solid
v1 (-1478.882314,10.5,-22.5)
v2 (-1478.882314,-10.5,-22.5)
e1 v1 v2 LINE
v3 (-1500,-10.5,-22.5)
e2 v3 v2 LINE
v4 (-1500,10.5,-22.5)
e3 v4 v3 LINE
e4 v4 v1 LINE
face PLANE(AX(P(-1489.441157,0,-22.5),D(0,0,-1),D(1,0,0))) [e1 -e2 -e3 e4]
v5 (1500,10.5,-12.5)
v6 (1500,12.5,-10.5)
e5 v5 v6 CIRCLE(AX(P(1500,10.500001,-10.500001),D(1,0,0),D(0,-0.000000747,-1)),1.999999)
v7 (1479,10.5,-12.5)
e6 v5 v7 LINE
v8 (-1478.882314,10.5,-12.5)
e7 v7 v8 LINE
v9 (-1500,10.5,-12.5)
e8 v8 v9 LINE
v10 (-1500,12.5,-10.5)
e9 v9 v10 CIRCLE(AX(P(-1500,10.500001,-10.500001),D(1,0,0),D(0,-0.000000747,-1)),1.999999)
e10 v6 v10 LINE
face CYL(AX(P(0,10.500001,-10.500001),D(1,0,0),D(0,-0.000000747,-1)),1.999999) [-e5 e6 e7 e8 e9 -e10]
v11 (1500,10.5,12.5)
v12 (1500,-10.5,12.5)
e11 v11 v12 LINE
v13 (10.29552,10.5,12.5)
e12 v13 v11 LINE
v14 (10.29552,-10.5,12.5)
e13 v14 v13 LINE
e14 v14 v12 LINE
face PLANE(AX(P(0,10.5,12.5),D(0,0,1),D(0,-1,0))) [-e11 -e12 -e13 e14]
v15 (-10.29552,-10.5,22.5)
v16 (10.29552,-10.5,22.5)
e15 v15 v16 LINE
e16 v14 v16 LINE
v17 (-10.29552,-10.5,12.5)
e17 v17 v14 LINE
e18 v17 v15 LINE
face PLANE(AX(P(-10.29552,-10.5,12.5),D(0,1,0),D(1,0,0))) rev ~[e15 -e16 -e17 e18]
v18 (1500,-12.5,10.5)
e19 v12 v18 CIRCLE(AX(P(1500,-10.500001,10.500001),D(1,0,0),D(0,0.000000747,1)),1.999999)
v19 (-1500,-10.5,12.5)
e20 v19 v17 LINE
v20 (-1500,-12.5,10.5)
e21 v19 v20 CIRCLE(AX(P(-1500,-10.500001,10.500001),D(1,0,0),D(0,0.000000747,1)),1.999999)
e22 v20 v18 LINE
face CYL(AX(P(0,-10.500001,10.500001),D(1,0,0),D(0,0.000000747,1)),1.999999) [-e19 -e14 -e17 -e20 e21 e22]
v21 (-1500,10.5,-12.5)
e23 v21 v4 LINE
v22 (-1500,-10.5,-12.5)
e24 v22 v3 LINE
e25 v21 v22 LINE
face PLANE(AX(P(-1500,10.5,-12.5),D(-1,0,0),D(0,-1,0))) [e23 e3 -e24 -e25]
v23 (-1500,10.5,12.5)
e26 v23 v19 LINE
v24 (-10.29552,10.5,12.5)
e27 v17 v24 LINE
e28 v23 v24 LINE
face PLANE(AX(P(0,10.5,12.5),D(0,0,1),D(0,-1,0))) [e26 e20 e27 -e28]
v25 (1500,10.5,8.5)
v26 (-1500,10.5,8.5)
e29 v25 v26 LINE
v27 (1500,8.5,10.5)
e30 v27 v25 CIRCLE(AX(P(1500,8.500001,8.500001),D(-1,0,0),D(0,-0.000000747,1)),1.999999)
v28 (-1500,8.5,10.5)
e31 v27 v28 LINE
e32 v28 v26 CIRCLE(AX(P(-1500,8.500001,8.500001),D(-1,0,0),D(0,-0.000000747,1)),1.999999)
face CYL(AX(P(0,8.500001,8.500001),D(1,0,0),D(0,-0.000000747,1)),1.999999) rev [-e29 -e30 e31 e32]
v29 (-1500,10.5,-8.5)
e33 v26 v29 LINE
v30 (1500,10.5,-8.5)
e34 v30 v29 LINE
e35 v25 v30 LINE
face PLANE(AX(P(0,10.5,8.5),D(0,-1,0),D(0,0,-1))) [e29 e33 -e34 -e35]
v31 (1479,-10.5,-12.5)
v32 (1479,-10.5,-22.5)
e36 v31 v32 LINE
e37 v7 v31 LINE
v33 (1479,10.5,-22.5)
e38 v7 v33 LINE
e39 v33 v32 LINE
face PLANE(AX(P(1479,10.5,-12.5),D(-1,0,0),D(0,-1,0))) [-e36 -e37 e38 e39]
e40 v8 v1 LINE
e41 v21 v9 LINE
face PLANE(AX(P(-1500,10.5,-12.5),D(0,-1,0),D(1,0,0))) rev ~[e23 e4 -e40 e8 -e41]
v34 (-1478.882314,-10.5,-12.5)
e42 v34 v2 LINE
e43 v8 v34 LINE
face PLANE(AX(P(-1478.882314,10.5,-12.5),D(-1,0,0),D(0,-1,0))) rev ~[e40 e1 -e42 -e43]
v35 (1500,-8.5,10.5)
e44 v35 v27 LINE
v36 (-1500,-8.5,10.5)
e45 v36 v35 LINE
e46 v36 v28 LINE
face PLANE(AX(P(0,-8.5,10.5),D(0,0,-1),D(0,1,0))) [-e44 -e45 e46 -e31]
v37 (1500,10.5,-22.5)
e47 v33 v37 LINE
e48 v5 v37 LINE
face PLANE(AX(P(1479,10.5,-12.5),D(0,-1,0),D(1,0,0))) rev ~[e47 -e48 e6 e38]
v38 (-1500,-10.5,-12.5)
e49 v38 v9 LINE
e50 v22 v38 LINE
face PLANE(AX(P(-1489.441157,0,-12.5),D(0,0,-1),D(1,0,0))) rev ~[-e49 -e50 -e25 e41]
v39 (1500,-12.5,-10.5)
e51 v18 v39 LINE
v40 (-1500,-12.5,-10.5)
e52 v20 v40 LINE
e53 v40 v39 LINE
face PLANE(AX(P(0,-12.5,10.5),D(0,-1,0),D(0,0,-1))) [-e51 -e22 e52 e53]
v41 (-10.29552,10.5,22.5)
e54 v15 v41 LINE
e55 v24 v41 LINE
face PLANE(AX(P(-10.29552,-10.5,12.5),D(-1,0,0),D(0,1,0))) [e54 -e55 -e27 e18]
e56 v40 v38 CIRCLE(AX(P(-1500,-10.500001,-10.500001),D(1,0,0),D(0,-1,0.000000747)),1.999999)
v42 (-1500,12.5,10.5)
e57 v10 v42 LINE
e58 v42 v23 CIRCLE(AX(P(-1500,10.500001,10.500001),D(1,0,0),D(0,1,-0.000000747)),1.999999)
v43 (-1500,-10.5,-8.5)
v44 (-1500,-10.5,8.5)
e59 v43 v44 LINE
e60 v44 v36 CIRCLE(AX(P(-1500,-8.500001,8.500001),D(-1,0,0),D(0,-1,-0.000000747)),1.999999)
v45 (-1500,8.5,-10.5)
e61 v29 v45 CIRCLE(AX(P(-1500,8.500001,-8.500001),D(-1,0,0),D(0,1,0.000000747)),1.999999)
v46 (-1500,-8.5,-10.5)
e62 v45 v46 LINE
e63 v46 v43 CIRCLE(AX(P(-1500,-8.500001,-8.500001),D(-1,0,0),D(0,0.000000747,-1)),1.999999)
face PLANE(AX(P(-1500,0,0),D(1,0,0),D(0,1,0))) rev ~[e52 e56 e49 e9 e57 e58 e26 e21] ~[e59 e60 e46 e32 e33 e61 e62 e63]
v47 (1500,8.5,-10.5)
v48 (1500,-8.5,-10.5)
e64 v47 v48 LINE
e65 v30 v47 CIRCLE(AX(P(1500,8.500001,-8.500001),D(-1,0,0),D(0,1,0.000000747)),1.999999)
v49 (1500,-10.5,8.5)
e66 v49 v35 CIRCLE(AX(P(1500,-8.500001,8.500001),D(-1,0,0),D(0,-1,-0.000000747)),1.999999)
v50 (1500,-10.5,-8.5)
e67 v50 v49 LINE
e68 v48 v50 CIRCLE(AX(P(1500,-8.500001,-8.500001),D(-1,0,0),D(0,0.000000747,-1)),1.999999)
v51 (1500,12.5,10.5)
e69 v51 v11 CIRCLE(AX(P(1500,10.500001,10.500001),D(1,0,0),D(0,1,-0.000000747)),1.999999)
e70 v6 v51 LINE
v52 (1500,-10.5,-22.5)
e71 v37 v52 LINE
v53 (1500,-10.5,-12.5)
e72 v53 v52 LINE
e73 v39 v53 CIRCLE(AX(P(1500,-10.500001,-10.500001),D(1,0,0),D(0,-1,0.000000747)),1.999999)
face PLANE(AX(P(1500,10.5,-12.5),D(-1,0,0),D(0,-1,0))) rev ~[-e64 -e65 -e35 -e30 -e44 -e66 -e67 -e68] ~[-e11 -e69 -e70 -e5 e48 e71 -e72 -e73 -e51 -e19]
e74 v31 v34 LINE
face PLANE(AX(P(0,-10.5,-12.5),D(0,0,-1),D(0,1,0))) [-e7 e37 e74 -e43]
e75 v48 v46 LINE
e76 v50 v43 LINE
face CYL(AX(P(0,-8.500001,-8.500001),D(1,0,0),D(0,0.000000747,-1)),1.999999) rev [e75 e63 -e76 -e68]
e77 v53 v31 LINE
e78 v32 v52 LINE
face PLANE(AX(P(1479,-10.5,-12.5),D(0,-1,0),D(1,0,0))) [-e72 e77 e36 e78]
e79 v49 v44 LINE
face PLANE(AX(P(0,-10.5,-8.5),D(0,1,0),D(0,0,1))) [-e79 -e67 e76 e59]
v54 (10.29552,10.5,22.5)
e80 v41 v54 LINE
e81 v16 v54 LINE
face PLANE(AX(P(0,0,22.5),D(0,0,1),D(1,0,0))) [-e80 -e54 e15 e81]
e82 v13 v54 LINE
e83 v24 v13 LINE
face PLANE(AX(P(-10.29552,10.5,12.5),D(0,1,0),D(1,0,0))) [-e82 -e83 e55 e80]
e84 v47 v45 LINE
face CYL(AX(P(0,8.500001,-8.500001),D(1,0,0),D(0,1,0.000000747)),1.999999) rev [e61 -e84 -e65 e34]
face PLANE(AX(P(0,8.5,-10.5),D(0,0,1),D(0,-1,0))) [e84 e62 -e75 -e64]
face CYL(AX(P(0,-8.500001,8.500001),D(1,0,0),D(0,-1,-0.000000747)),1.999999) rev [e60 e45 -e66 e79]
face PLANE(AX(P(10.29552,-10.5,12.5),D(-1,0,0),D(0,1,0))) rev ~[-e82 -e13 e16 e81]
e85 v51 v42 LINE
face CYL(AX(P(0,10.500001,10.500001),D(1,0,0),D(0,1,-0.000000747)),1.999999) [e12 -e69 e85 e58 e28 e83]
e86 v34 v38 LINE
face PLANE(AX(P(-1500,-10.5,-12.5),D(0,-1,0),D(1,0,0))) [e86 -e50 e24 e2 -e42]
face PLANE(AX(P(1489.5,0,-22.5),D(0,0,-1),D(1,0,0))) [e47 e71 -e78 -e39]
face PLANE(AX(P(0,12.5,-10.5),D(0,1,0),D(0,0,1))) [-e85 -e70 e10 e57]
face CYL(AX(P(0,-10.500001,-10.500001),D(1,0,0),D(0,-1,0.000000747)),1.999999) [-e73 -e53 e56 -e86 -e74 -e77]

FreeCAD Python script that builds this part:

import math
import FreeCAD as App
import Part
import Sketcher

V = App.Vector

doc = App.newDocument("Part")
params = doc.addObject("Spreadsheet::Sheet", "Params")
for row, (alias, value) in enumerate([
    ("sketch1_radius", "1.999999 mm"),
    ("sketch1_width", "21 mm"),
    ("pad1_length", "3000 mm"),
    ("sketch2_height", "21 mm"),
    ("pad2_length", "10 mm"),
    ("sketch3_width", "21 mm"),
    ("pad3_length", "10 mm"),
    ("sketch4_height", "21 mm"),
    ("pad4_length", "10 mm"),
], start=1):
    params.set(f"A{row}", alias)
    params.set(f"B{row}", "=" + value)
    params.setAlias(f"B{row}", alias)

body = doc.addObject("PartDesign::Body", "Body")

# Sketch on YZ plane
sketch1 = body.newObject("Sketcher::SketchObject", "Sketch")
sketch1.AttachmentSupport = (doc.getObject("YZ_Plane"), [""])
sketch1.MapMode = "FlatFace"
sketch1.addGeometry(Part.ArcOfCircle(Part.Circle(V(10.5, 10.5, 0), V(0, 0, 1), 2), math.radians(0), math.radians(90)), False)
sketch1.addGeometry(Part.LineSegment(V(10.5, 12.5, 0), V(-10.5, 12.5, 0)), False)
sketch1.addGeometry(Part.ArcOfCircle(Part.Circle(V(-10.5, 10.5, 0), V(0, 0, 1), 2), math.radians(90), math.radians(180)), False)
sketch1.addGeometry(Part.LineSegment(V(-12.5, 10.5, 0), V(-12.5, -10.5, 0)), False)
sketch1.addGeometry(Part.ArcOfCircle(Part.Circle(V(-10.5, -10.5, 0), V(0, 0, 1), 2), math.radians(180), math.radians(270)), False)
sketch1.addGeometry(Part.LineSegment(V(-10.5, -12.5, 0), V(10.5, -12.5, 0)), False)
sketch1.addGeometry(Part.ArcOfCircle(Part.Circle(V(10.5, -10.5, 0), V(0, 0, 1), 2), math.radians(-90), math.radians(0)), False)
sketch1.addGeometry(Part.LineSegment(V(12.5, -10.5, 0), V(12.5, 10.5, 0)), False)
sketch1.addGeometry(Part.ArcOfCircle(Part.Circle(V(-8.5, 8.5, 0), V(0, 0, 1), 2), math.radians(90), math.radians(180)), False)
sketch1.addGeometry(Part.LineSegment(V(-8.5, 10.5, 0), V(8.5, 10.5, 0)), False)
sketch1.addGeometry(Part.ArcOfCircle(Part.Circle(V(8.5, 8.5, 0), V(0, 0, 1), 2), math.radians(0), math.radians(90)), False)
sketch1.addGeometry(Part.LineSegment(V(10.5, 8.5, 0), V(10.5, -8.5, 0)), False)
sketch1.addGeometry(Part.ArcOfCircle(Part.Circle(V(8.5, -8.5, 0), V(0, 0, 1), 2), math.radians(-90), math.radians(0)), False)
sketch1.addGeometry(Part.LineSegment(V(8.5, -10.5, 0), V(-8.5, -10.5, 0)), False)
sketch1.addGeometry(Part.ArcOfCircle(Part.Circle(V(-8.5, -8.5, 0), V(0, 0, 1), 2), math.radians(180), math.radians(270)), False)
sketch1.addGeometry(Part.LineSegment(V(-10.5, -8.5, 0), V(-10.5, 8.5, 0)), False)
sketch1.addConstraint(Sketcher.Constraint("Tangent", 0, 2, 1, 1))
sketch1.addConstraint(Sketcher.Constraint("Tangent", 1, 2, 2, 1))
sketch1.addConstraint(Sketcher.Constraint("Tangent", 2, 2, 3, 1))
sketch1.addConstraint(Sketcher.Constraint("Tangent", 3, 2, 4, 1))
sketch1.addConstraint(Sketcher.Constraint("Tangent", 4, 2, 5, 1))
sketch1.addConstraint(Sketcher.Constraint("Tangent", 5, 2, 6, 1))
sketch1.addConstraint(Sketcher.Constraint("Tangent", 6, 2, 7, 1))
sketch1.addConstraint(Sketcher.Constraint("Tangent", 7, 2, 0, 1))
sketch1.addConstraint(Sketcher.Constraint("Tangent", 8, 1, 9, 1))
sketch1.addConstraint(Sketcher.Constraint("Tangent", 9, 2, 10, 2))
sketch1.addConstraint(Sketcher.Constraint("Tangent", 10, 1, 11, 1))
sketch1.addConstraint(Sketcher.Constraint("Tangent", 11, 2, 12, 2))
sketch1.addConstraint(Sketcher.Constraint("Tangent", 12, 1, 13, 1))
sketch1.addConstraint(Sketcher.Constraint("Tangent", 13, 2, 14, 2))
sketch1.addConstraint(Sketcher.Constraint("Tangent", 14, 1, 15, 1))
sketch1.addConstraint(Sketcher.Constraint("Tangent", 15, 2, 8, 2))
sketch1.addConstraint(Sketcher.Constraint("Horizontal", 1))
sketch1.addConstraint(Sketcher.Constraint("Vertical", 3))
sketch1.addConstraint(Sketcher.Constraint("Horizontal", 5))
sketch1.addConstraint(Sketcher.Constraint("Vertical", 7))
sketch1.addConstraint(Sketcher.Constraint("Horizontal", 9))
sketch1.addConstraint(Sketcher.Constraint("Vertical", 11))
sketch1.addConstraint(Sketcher.Constraint("Horizontal", 13))
sketch1.addConstraint(Sketcher.Constraint("Vertical", 15))
sketch1.addConstraint(Sketcher.Constraint("Equal", 0, 2))
sketch1.addConstraint(Sketcher.Constraint("Equal", 2, 4))
sketch1.addConstraint(Sketcher.Constraint("Equal", 4, 6))
sketch1.addConstraint(Sketcher.Constraint("Equal", 6, 8))
sketch1.addConstraint(Sketcher.Constraint("Equal", 8, 10))
sketch1.addConstraint(Sketcher.Constraint("Equal", 10, 12))
sketch1.addConstraint(Sketcher.Constraint("Equal", 12, 14))
sketch1.addConstraint(Sketcher.Constraint("Symmetric", 0, 3, 4, 3, -1, 1))
sketch1.addConstraint(Sketcher.Constraint("Symmetric", 8, 3, 12, 3, -1, 1))
sketch1.addConstraint(Sketcher.Constraint("Horizontal", 7, 2, 8, 1))
sketch1.addConstraint(Sketcher.Constraint("Vertical", 5, 2, 10, 1))
sketch1.addConstraint(Sketcher.Constraint("Equal", 5, 3))
sketch1.addConstraint(Sketcher.Constraint("Radius", 0, 1.999999))
sketch1.addConstraint(Sketcher.Constraint("DistanceX", 1, 2, 1, 1, 21.0))
sketch1.setExpression("Constraints[36]", "Params.sketch1_radius")
sketch1.setExpression("Constraints[37]", "Params.sketch1_width")
pad1 = body.newObject("PartDesign::Pad", "Pad")
pad1.Profile = sketch1
pad1.setExpression("Length", "Params.pad1_length")
pad1.Midplane = True

# Sketch on XY plane
sketch2 = body.newObject("Sketcher::SketchObject", "Sketch001")
sketch2.AttachmentSupport = (doc.getObject("XY_Plane"), [""])
sketch2.MapMode = "FlatFace"
sketch2.AttachmentOffset = App.Placement(V(0, 0, -12.5), App.Rotation())
sketch2.addGeometry(Part.LineSegment(V(-1500, -10, 0), V(-1500, 10, 0)), False)
sketch2.addGeometry(Part.LineSegment(V(-1500, 10, 0), V(-1479, 10, 0)), False)
sketch2.addGeometry(Part.LineSegment(V(-1479, 10, 0), V(-1479, -10, 0)), False)
sketch2.addGeometry(Part.LineSegment(V(-1479, -10, 0), V(-1500, -10, 0)), False)
sketch2.addConstraint(Sketcher.Constraint("Coincident", 0, 2, 1, 1))
sketch2.addConstraint(Sketcher.Constraint("Coincident", 1, 2, 2, 1))
sketch2.addConstraint(Sketcher.Constraint("Coincident", 2, 2, 3, 1))
sketch2.addConstraint(Sketcher.Constraint("Coincident", 3, 2, 0, 1))
sketch2.addConstraint(Sketcher.Constraint("Vertical", 0))
sketch2.addConstraint(Sketcher.Constraint("Horizontal", 1))
sketch2.addConstraint(Sketcher.Constraint("Vertical", 2))
sketch2.addConstraint(Sketcher.Constraint("Horizontal", 3))
sketch2.addConstraint(Sketcher.Constraint("DistanceY", 0, 1, 0, 2, 21.0))
sketch2.addConstraint(Sketcher.Constraint("DistanceX", 0, 2, -1, 1, 1500.0))
sketch2.addConstraint(Sketcher.Constraint("DistanceY", -1, 1, 0, 2, 10.5))
sketch2.addConstraint(Sketcher.Constraint("DistanceX", 1, 1, 1, 2, 21.117687))
sketch2.setExpression("Constraints[8]", "Params.sketch2_height")
pad2 = body.newObject("PartDesign::Pad", "Pad001")
pad2.Profile = sketch2
pad2.setExpression("Length", "Params.pad2_length")
pad2.Reversed = True

# Sketch on XY plane
sketch3 = body.newObject("Sketcher::SketchObject", "Sketch002")
sketch3.AttachmentSupport = (doc.getObject("XY_Plane"), [""])
sketch3.MapMode = "FlatFace"
sketch3.AttachmentOffset = App.Placement(V(0, 0, -12.5), App.Rotation())
sketch3.addGeometry(Part.LineSegment(V(1479, -10, 0), V(1479, 10, 0)), False)
sketch3.addGeometry(Part.LineSegment(V(1479, 10, 0), V(1500, 10, 0)), False)
sketch3.addGeometry(Part.LineSegment(V(1500, 10, 0), V(1500, -10, 0)), False)
sketch3.addGeometry(Part.LineSegment(V(1500, -10, 0), V(1479, -10, 0)), False)
sketch3.addGeometry(Part.LineSegment(V(-1500, -10, 0), V(-1500, 10, 0)), False)
sketch3.addGeometry(Part.LineSegment(V(-1500, 10, 0), V(-1479, 10, 0)), False)
sketch3.addGeometry(Part.LineSegment(V(-1479, 10, 0), V(-1479, -10, 0)), False)
sketch3.addGeometry(Part.LineSegment(V(-1479, -10, 0), V(-1500, -10, 0)), False)
sketch3.addConstraint(Sketcher.Constraint("Coincident", 0, 2, 1, 1))
sketch3.addConstraint(Sketcher.Constraint("Coincident", 1, 2, 2, 1))
sketch3.addConstraint(Sketcher.Constraint("Coincident", 2, 2, 3, 1))
sketch3.addConstraint(Sketcher.Constraint("Coincident", 3, 2, 0, 1))
sketch3.addConstraint(Sketcher.Constraint("Coincident", 4, 2, 5, 1))
sketch3.addConstraint(Sketcher.Constraint("Coincident", 5, 2, 6, 1))
sketch3.addConstraint(Sketcher.Constraint("Coincident", 6, 2, 7, 1))
sketch3.addConstraint(Sketcher.Constraint("Coincident", 7, 2, 4, 1))
sketch3.addConstraint(Sketcher.Constraint("Vertical", 0))
sketch3.addConstraint(Sketcher.Constraint("Horizontal", 1))
sketch3.addConstraint(Sketcher.Constraint("Vertical", 2))
sketch3.addConstraint(Sketcher.Constraint("Horizontal", 3))
sketch3.addConstraint(Sketcher.Constraint("Vertical", 4))
sketch3.addConstraint(Sketcher.Constraint("Horizontal", 5))
sketch3.addConstraint(Sketcher.Constraint("Vertical", 6))
sketch3.addConstraint(Sketcher.Constraint("Horizontal", 7))
sketch3.addConstraint(Sketcher.Constraint("Symmetric", 2, 2, 4, 2, -1, 1))
sketch3.addConstraint(Sketcher.Constraint("Horizontal", 1, 2, 4, 2))
sketch3.addConstraint(Sketcher.Constraint("Horizontal", 3, 2, 6, 2))
sketch3.addConstraint(Sketcher.Constraint("Equal", 3, 0))
sketch3.addConstraint(Sketcher.Constraint("DistanceX", 1, 1, 1, 2, 21.0))
sketch3.addConstraint(Sketcher.Constraint("DistanceX", -1, 1, 0, 2, 1479.0))
sketch3.addConstraint(Sketcher.Constraint("DistanceX", 5, 1, 5, 2, 21.117687))
sketch3.setExpression("Constraints[20]", "Params.sketch3_width")
pad3 = body.newObject("PartDesign::Pad", "Pad002")
pad3.Profile = sketch3
pad3.setExpression("Length", "Params.pad3_length")
pad3.Reversed = True

# Sketch on XY plane
sketch4 = body.newObject("Sketcher::SketchObject", "Sketch003")
sketch4.AttachmentSupport = (doc.getObject("XY_Plane"), [""])
sketch4.MapMode = "FlatFace"
sketch4.AttachmentOffset = App.Placement(V(0, 0, 12.5), App.Rotation())
sketch4.addGeometry(Part.LineSegment(V(-10, 10, 0), V(-10, -10, 0)), False)
sketch4.addGeometry(Part.LineSegment(V(-10, -10, 0), V(10, -10, 0)), False)
sketch4.addGeometry(Part.LineSegment(V(10, -10, 0), V(10, 10, 0)), False)
sketch4.addGeometry(Part.LineSegment(V(10, 10, 0), V(-10, 10, 0)), False)
sketch4.addConstraint(Sketcher.Constraint("Coincident", 0, 2, 1, 1))
sketch4.addConstraint(Sketcher.Constraint("Coincident", 1, 2, 2, 1))
sketch4.addConstraint(Sketcher.Constraint("Coincident", 2, 2, 3, 1))
sketch4.addConstraint(Sketcher.Constraint("Coincident", 3, 2, 0, 1))
sketch4.addConstraint(Sketcher.Constraint("Vertical", 0))
sketch4.addConstraint(Sketcher.Constraint("Horizontal", 1))
sketch4.addConstraint(Sketcher.Constraint("Vertical", 2))
sketch4.addConstraint(Sketcher.Constraint("Horizontal", 3))
sketch4.addConstraint(Sketcher.Constraint("Symmetric", 0, 2, 2, 2, -1, 1))
sketch4.addConstraint(Sketcher.Constraint("DistanceY", 0, 2, 0, 1, 21.0))
sketch4.addConstraint(Sketcher.Constraint("DistanceX", 1, 1, 1, 2, 20.59104))
sketch4.setExpression("Constraints[9]", "Params.sketch4_height")
pad4 = body.newObject("PartDesign::Pad", "Pad003")
pad4.Profile = sketch4
pad4.setExpression("Length", "Params.pad4_length")

doc.recompute()
